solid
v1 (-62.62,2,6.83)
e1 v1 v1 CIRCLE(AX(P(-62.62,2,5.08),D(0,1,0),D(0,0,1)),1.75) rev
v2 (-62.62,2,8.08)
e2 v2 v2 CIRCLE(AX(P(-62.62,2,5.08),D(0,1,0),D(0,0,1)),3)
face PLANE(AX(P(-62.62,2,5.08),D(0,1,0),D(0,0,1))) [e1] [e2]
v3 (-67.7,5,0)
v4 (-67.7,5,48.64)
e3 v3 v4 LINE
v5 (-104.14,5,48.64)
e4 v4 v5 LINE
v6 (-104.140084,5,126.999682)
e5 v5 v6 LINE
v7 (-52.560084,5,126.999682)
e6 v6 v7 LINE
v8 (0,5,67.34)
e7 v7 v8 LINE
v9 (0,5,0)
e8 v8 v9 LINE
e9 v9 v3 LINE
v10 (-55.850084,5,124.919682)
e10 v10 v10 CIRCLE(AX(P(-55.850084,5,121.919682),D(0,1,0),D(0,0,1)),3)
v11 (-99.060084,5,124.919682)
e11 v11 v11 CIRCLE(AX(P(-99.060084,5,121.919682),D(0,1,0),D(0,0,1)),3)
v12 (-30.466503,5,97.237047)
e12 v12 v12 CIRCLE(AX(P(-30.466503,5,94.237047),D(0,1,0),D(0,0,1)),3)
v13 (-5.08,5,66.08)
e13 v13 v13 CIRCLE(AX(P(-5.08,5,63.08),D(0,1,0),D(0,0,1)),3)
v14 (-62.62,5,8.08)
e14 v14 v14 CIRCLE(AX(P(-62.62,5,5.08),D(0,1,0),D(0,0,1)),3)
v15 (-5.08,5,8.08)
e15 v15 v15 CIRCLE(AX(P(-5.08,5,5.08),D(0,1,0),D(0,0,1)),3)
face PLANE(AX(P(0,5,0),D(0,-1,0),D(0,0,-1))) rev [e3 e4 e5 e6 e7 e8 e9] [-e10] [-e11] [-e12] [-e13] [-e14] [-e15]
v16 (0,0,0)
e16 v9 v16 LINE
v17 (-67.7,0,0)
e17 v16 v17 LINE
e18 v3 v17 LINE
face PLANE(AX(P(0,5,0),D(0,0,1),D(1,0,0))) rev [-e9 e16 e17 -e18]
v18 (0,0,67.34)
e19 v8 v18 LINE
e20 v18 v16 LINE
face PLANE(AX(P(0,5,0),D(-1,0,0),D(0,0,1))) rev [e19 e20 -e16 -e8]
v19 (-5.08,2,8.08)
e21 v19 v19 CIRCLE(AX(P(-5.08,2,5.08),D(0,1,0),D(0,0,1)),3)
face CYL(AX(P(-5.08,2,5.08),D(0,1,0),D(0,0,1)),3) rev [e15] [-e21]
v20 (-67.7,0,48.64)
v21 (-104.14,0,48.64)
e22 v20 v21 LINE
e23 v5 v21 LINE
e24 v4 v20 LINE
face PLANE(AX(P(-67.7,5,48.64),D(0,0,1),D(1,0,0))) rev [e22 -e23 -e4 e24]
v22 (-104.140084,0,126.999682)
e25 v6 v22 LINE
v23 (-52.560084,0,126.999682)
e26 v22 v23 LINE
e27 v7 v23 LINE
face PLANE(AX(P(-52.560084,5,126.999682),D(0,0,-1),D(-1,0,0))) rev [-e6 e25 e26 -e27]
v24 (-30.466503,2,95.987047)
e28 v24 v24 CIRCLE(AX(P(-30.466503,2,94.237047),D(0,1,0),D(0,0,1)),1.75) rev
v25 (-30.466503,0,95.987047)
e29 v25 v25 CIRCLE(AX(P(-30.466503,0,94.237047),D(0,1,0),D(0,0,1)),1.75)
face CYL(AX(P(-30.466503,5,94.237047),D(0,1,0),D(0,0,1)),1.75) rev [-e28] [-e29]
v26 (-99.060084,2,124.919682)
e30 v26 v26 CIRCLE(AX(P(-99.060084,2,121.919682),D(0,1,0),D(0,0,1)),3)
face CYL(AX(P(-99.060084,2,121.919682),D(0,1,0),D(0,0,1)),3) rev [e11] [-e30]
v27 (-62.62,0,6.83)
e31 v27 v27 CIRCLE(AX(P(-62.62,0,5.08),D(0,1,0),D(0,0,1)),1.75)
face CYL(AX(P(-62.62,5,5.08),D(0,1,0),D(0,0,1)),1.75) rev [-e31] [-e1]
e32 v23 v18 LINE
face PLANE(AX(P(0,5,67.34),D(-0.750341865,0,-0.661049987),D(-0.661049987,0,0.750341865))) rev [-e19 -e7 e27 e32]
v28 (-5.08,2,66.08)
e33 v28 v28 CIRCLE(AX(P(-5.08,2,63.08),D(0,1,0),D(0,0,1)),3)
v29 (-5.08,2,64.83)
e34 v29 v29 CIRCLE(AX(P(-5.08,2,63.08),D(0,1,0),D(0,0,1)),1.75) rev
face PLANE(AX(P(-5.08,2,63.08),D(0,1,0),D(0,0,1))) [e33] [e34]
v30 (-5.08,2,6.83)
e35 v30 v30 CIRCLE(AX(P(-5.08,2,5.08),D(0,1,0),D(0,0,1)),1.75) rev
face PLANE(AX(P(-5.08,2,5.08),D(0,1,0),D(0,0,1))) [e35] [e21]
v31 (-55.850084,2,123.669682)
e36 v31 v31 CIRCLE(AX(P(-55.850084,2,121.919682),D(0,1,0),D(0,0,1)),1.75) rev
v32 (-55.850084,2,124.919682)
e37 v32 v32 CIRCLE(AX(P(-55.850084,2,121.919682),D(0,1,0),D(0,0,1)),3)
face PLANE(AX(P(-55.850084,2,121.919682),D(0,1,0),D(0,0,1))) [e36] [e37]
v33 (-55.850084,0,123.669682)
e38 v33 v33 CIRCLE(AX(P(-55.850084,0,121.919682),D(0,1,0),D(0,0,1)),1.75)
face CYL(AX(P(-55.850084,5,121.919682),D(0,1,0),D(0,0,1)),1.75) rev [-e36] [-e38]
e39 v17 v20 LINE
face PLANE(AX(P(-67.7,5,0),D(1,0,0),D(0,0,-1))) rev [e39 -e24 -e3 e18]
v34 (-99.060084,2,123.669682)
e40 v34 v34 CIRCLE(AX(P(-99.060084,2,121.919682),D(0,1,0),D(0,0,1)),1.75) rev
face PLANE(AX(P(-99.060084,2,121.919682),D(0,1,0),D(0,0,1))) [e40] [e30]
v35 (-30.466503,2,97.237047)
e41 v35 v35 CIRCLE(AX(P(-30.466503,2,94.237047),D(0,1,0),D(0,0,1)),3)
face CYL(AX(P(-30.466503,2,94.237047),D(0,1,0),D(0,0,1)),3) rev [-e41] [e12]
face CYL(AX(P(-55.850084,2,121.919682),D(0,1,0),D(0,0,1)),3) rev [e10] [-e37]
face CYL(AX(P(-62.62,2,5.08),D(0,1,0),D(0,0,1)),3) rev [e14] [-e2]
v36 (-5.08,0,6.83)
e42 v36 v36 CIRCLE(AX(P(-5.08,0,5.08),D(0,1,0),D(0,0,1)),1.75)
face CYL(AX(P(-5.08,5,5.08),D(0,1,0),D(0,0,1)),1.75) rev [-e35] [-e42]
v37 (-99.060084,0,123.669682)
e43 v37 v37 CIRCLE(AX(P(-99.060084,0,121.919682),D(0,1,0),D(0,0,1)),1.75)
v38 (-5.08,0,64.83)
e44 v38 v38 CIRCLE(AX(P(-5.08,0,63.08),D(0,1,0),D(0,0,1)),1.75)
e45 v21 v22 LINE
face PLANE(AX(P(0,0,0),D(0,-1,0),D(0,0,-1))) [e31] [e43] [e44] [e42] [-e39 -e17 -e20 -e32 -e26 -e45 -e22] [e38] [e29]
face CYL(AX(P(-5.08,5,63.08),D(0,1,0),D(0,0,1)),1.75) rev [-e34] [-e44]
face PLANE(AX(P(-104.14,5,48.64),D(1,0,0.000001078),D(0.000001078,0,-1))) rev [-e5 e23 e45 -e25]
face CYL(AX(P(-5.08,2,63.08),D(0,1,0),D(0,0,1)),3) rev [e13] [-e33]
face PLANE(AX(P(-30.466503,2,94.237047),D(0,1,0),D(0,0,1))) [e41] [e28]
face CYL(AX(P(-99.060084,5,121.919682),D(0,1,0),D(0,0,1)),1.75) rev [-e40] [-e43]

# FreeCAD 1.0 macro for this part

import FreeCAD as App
import Part
import Sketcher
from FreeCAD import Vector
Q = App.Units.Quantity


def add_polygon(sketch, points):
    """Adds a closed chain of lines whose ends are joined by coincident constraints."""
    first, n = sketch.GeometryCount, len(points)
    for a, b in zip(points, points[1:] + points[:1]):
        sketch.addGeometry(Part.LineSegment(App.Vector(*a, 0), App.Vector(*b, 0)), False)
    for i in range(n):
        sketch.addConstraint(Sketcher.Constraint("Coincident", first + i, 2, first + (i + 1) % n, 1))

doc = App.newDocument("Part")
params = doc.addObject("Spreadsheet::Sheet", "Params")
for row, (alias, value) in enumerate([
    ("sketch1_width", "67.7 mm"),
    ("sketch1_width2", "36.44 mm"),
    ("sketch1_width3", "51.58 mm"),
    ("sketch1_height", "48.64 mm"),
    ("sketch1_height2", "67.34 mm"),
    ("pad1_length", "5 mm"),
    ("sketch2_diameter", "3.5 mm"),
    ("hole_diameter", "3.5 mm"),
    ("sketch3_diameter", "6 mm"),
    ("pocket1_length", "3 mm"),
], start=1):
    params.set(f"A{row}", alias)
    params.set(f"B{row}", "=" + value)
    params.setAlias(f"B{row}", alias)

body = doc.addObject("PartDesign::Body", "Body")

# Sketch on XZ plane
sketch1 = body.newObject("Sketcher::SketchObject", "Sketch")
sketch1.AttachmentSupport = (doc.getObject("XZ_Plane"), [""])
sketch1.MapMode = "FlatFace"
add_polygon(sketch1, [(0, 0), (-68, 0), (-68, 49), (-104, 49), (-104, 127), (-53, 127), (0, 67)])  # lines 0-6
sketch1.addConstraint(Sketcher.Constraint("Horizontal", 0))
sketch1.addConstraint(Sketcher.Constraint("Vertical", 1))
sketch1.addConstraint(Sketcher.Constraint("Horizontal", 2))
sketch1.addConstraint(Sketcher.Constraint("Horizontal", 4))
sketch1.addConstraint(Sketcher.Constraint("Vertical", 6))
sketch1.addConstraint(Sketcher.Constraint("Coincident", 6, 2, -1, 1))
sketch1.addConstraint(Sketcher.Constraint("DistanceX", 0, 2, 0, 1, 67.7))
sketch1.addConstraint(Sketcher.Constraint("DistanceX", 2, 2, 2, 1, 36.44))
sketch1.addConstraint(Sketcher.Constraint("DistanceX", 4, 1, 4, 2, 51.58))
sketch1.addConstraint(Sketcher.Constraint("DistanceY", 1, 1, 1, 2, 48.64))
sketch1.addConstraint(Sketcher.Constraint("DistanceY", 6, 2, 6, 1, 67.34))
sketch1.addConstraint(Sketcher.Constraint("Angle", 5, Q("-48.62 deg")))
sketch1.addConstraint(Sketcher.Constraint("Distance", 5, 79.51))
sketch1.setExpression("Constraints[13]", "Params.sketch1_width")
sketch1.setExpression("Constraints[14]", "Params.sketch1_width2")
sketch1.setExpression("Constraints[15]", "Params.sketch1_width3")
sketch1.setExpression("Constraints[16]", "Params.sketch1_height")
sketch1.setExpression("Constraints[17]", "Params.sketch1_height2")
pad1 = body.newObject("PartDesign::Pad", "Pad")
pad1.Profile = sketch1
pad1.setExpression("Length", "Params.pad1_length")
pad1.Reversed = True

# Sketch on XZ plane
sketch2 = body.newObject("Sketcher::SketchObject", "Sketch001")
sketch2.AttachmentSupport = (doc.getObject("XZ_Plane"), [""])
sketch2.MapMode = "FlatFace"
sketch2.AttachmentOffset = App.Placement(Vector(0, 0, -5), App.Rotation())
sketch2.addGeometry(Part.Circle(Vector(-99.1, 121.9, 0), Vector(0, 0, 1), 1.8), False)
sketch2.addGeometry(Part.Circle(Vector(-55.9, 121.9, 0), Vector(0, 0, 1), 1.8), False)
sketch2.addGeometry(Part.Circle(Vector(-5.1, 63.1, 0), Vector(0, 0, 1), 1.8), False)
sketch2.addGeometry(Part.Circle(Vector(-30.5, 94.2, 0), Vector(0, 0, 1), 1.8), False)
sketch2.addGeometry(Part.Circle(Vector(-5.1, 5.1, 0), Vector(0, 0, 1), 1.8), False)
sketch2.addGeometry(Part.Circle(Vector(-62.6, 5.1, 0), Vector(0, 0, 1), 1.8), False)
sketch2.addConstraint(Sketcher.Constraint("Equal", 0, 1))
sketch2.addConstraint(Sketcher.Constraint("Equal", 1, 2))
sketch2.addConstraint(Sketcher.Constraint("Equal", 2, 3))
sketch2.addConstraint(Sketcher.Constraint("Equal", 3, 4))
sketch2.addConstraint(Sketcher.Constraint("Equal", 4, 5))
sketch2.addConstraint(Sketcher.Constraint("Horizontal", 0, 3, 1, 3))
sketch2.addConstraint(Sketcher.Constraint("Horizontal", 4, 3, 5, 3))
sketch2.addConstraint(Sketcher.Constraint("Vertical", 2, 3, 4, 3))
sketch2.addConstraint(Sketcher.Constraint("Diameter", 0, 3.5))
sketch2.addConstraint(Sketcher.Constraint("DistanceY", 4, 3, 2, 3, 58.0))
sketch2.addConstraint(Sketcher.Constraint("DistanceX", 2, 3, -1, 1, 5.08))
sketch2.addConstraint(Sketcher.Constraint("DistanceY", -1, 1, 2, 3, 63.08))
sketch2.addConstraint(Sketcher.Constraint("DistanceX", 5, 3, -1, 1, 62.62))
sketch2.addConstraint(Sketcher.Constraint("DistanceX", 0, 3, 1, 3, 43.21))
sketch2.addConstraint(Sketcher.Constraint("DistanceY", -1, 1, 0, 3, 121.919682))
sketch2.addConstraint(Sketcher.Constraint("DistanceX", 1, 3, 3, 3, 25.383582))
sketch2.addConstraint(Sketcher.Constraint("DistanceX", 0, 3, -1, 1, 99.060084))
sketch2.addConstraint(Sketcher.Constraint("DistanceY", -1, 1, 3, 3, 94.237047))
sketch2.setExpression("Constraints[8]", "Params.sketch2_diameter")
doc.recompute()
hole = body.newObject("PartDesign::Hole", "Hole")
hole.Profile = sketch2
hole.ThreadType = "None"
hole.setExpression("Diameter", "Params.hole_diameter")
hole.DepthType = "ThroughAll"
hole.Reversed = True

# Sketch on XZ plane
sketch3 = body.newObject("Sketcher::SketchObject", "Sketch002")
sketch3.AttachmentSupport = (doc.getObject("XZ_Plane"), [""])
sketch3.MapMode = "FlatFace"
sketch3.AttachmentOffset = App.Placement(Vector(0, 0, -5), App.Rotation())
sketch3.addGeometry(Part.Circle(Vector(-99.1, 121.9, 0), Vector(0, 0, 1), 3), False)
sketch3.addGeometry(Part.Circle(Vector(-55.9, 121.9, 0), Vector(0, 0, 1), 3), False)
sketch3.addGeometry(Part.Circle(Vector(-30.5, 94.2, 0), Vector(0, 0, 1), 3), False)
sketch3.addGeometry(Part.Circle(Vector(-5.1, 63.1, 0), Vector(0, 0, 1), 3), False)
sketch3.addGeometry(Part.Circle(Vector(-5.1, 5.1, 0), Vector(0, 0, 1), 3), False)
sketch3.addGeometry(Part.Circle(Vector(-62.6, 5.1, 0), Vector(0, 0, 1), 3), False)
sketch3.addConstraint(Sketcher.Constraint("Equal", 0, 1))
sketch3.addConstraint(Sketcher.Constraint("Equal", 1, 2))
sketch3.addConstraint(Sketcher.Constraint("Equal", 2, 3))
sketch3.addConstraint(Sketcher.Constraint("Equal", 3, 4))
sketch3.addConstraint(Sketcher.Constraint("Equal", 4, 5))
sketch3.addConstraint(Sketcher.Constraint("Horizontal", 0, 3, 1, 3))
sketch3.addConstraint(Sketcher.Constraint("Horizontal", 4, 3, 5, 3))
sketch3.addConstraint(Sketcher.Constraint("Vertical", 3, 3, 4, 3))
sketch3.addConstraint(Sketcher.Constraint("Diameter", 0, 6.0))
sketch3.addConstraint(Sketcher.Constraint("DistanceY", 4, 3, 3, 3, 58.0))
sketch3.addConstraint(Sketcher.Constraint("DistanceX", 3, 3, -1, 1, 5.08))
sketch3.addConstraint(Sketcher.Constraint("DistanceY", -1, 1, 3, 3, 63.08))
sketch3.addConstraint(Sketcher.Constraint("DistanceX", 5, 3, -1, 1, 62.62))
sketch3.addConstraint(Sketcher.Constraint("DistanceX", 0, 3, 1, 3, 43.21))
sketch3.addConstraint(Sketcher.Constraint("DistanceY", -1, 1, 0, 3, 121.919682))
sketch3.addConstraint(Sketcher.Constraint("DistanceX", 1, 3, 2, 3, 25.383582))
sketch3.addConstraint(Sketcher.Constraint("DistanceX", 0, 3, -1, 1, 99.060084))
sketch3.addConstraint(Sketcher.Constraint("DistanceY", -1, 1, 2, 3, 94.237047))
sketch3.setExpression("Constraints[8]", "Params.sketch3_diameter")
pocket1 = body.newObject("PartDesign::Pocket", "Pocket")
pocket1.Profile = sketch3
pocket1.setExpression("Length", "Params.pocket1_length")
pocket1.Reversed = True

doc.recompute()
